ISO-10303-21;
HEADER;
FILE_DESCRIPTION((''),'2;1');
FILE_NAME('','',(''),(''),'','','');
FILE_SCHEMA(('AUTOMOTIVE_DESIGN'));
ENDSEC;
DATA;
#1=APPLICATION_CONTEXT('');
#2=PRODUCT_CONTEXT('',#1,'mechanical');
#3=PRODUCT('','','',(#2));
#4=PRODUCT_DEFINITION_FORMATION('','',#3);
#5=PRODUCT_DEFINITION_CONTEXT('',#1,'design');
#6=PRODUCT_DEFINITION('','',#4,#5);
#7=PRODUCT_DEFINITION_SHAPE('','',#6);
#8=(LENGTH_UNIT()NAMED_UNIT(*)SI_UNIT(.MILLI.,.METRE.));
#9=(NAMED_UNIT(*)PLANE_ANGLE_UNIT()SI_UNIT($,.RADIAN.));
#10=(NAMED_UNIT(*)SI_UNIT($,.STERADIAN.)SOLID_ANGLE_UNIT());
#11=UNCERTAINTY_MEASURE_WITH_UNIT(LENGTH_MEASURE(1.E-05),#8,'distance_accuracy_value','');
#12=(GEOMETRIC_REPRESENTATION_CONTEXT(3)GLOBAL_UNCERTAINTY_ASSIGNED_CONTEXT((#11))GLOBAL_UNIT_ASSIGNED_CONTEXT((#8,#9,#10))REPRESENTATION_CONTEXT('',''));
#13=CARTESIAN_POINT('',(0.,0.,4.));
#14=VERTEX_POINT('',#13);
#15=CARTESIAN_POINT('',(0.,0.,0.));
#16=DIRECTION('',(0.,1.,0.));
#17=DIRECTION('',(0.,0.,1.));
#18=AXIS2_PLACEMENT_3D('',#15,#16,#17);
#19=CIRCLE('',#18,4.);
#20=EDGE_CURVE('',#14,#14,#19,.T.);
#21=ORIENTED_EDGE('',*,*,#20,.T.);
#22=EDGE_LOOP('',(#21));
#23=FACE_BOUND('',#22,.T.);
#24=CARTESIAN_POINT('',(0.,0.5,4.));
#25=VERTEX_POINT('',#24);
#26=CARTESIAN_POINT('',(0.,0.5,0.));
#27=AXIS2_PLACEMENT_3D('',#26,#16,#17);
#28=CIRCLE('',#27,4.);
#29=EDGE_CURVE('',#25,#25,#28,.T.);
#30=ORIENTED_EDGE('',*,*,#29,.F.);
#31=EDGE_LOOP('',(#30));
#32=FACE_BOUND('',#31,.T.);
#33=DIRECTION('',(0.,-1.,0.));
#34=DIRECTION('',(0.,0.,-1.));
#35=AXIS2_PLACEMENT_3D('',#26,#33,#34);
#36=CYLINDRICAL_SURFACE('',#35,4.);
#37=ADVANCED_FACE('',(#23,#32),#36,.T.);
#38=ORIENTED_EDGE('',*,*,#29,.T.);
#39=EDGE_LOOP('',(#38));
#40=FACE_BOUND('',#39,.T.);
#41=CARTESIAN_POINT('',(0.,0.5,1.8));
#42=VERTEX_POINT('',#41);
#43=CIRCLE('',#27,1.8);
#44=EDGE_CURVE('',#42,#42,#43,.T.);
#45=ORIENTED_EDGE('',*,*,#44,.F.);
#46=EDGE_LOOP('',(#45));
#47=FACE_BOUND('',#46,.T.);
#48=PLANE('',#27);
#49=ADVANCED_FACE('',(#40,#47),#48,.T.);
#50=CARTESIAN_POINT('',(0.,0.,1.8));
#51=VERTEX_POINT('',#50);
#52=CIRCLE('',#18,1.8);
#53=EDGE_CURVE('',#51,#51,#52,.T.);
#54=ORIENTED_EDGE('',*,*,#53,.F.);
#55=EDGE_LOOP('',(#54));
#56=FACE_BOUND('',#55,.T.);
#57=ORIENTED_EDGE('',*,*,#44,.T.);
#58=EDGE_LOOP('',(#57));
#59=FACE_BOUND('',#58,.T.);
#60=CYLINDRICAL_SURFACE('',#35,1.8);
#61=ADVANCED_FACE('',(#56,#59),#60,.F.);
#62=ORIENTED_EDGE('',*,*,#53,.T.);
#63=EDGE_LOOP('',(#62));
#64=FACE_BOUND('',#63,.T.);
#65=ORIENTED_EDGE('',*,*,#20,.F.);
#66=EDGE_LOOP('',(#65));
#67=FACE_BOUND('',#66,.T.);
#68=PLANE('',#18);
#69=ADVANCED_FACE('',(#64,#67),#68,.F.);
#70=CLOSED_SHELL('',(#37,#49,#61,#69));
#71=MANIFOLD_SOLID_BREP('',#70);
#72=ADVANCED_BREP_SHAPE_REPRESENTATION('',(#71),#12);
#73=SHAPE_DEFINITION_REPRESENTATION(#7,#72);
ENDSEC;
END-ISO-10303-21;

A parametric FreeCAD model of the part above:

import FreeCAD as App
import Part
import Sketcher

V = App.Vector

doc = App.newDocument("Part")
body = doc.addObject("PartDesign::Body", "Body")

# Sketch on XZ plane
sketch1 = body.newObject("Sketcher::SketchObject", "Sketch")
sketch1.AttachmentSupport = (doc.getObject("XZ_Plane"), [""])
sketch1.MapMode = "FlatFace"
sketch1.addGeometry(Part.Circle(V(0, 0, 0), V(0, 0, 1), 4), False)
sketch1.addGeometry(Part.Circle(V(0, 0, 0), V(0, 0, 1), 1.8), False)
sketch1.addConstraint(Sketcher.Constraint("Coincident", 0, 3, -1, 1))
sketch1.addConstraint(Sketcher.Constraint("Coincident", 1, 3, -1, 1))
sketch1.addConstraint(Sketcher.Constraint("Diameter", 0, 8.0))
sketch1.addConstraint(Sketcher.Constraint("Diameter", 1, 3.6))
pad1 = body.newObject("PartDesign::Pad", "Pad")
pad1.Profile = sketch1
pad1.Length = 0.5
pad1.Reversed = True

doc.recompute()
